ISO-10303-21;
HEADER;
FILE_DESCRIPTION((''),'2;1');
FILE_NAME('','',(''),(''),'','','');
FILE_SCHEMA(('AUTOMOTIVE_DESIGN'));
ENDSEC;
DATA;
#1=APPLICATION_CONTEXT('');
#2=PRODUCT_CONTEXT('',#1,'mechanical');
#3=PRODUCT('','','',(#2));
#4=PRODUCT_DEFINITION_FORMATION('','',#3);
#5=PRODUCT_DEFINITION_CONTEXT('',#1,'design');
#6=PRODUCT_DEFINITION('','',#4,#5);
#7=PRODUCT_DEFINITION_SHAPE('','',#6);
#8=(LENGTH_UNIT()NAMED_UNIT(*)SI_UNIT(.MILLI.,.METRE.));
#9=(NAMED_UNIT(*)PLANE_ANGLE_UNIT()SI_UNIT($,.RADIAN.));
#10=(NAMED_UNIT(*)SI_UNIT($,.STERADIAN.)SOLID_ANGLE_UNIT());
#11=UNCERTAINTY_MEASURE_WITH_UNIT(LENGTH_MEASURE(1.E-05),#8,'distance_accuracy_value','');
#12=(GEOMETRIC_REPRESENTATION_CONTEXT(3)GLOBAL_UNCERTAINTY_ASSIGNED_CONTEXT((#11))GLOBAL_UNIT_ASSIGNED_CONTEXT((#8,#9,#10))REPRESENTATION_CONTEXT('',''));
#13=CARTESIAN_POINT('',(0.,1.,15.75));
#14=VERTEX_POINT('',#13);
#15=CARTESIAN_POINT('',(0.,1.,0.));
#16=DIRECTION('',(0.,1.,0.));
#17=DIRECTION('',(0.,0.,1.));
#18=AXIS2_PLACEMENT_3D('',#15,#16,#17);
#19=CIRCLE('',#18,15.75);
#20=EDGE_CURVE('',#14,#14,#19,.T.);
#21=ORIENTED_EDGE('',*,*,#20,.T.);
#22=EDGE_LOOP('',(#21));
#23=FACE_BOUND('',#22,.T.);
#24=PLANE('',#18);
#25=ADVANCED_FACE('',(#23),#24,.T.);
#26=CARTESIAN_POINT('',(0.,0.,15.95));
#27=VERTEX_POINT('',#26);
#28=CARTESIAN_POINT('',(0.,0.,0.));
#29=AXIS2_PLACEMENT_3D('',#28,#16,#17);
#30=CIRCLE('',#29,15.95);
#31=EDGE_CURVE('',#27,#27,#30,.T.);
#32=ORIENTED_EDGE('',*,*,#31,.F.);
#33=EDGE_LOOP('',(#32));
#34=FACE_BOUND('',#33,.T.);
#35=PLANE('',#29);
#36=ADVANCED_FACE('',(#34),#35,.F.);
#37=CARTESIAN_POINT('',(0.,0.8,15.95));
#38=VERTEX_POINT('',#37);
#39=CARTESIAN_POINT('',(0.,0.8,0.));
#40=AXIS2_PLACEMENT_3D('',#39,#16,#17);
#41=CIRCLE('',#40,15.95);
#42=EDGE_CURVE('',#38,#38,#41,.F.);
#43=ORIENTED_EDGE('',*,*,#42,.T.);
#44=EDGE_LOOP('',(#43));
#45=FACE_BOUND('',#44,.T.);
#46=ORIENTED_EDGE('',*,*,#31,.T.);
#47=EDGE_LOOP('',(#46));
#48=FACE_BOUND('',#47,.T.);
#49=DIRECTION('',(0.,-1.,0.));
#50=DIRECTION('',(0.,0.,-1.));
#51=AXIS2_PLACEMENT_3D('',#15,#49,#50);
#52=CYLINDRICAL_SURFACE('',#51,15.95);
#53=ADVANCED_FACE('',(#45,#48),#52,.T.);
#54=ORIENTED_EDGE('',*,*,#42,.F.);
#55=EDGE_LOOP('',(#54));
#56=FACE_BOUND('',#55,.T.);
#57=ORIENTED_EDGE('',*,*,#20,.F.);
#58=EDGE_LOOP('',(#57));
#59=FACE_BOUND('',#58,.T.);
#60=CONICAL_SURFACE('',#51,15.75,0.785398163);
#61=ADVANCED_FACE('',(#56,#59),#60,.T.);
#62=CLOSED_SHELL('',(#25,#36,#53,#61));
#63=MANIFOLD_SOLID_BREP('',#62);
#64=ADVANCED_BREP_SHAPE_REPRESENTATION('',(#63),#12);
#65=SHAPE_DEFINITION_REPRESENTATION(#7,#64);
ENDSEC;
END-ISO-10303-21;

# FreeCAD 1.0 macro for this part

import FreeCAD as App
import Part
import Sketcher
from FreeCAD import Vector
Q = App.Units.Quantity


def edges_at(feature, points):
    """Names of the edges that pass closest to the given points."""
    edges = feature.Shape.Edges
    near = lambda p: min(range(len(edges)), key=lambda i: edges[i].distToShape(Part.Vertex(*p))[0])
    return sorted({f"Edge{near(p) + 1}" for p in points})

doc = App.newDocument("Part")
body = doc.addObject("PartDesign::Body", "Body")

sketch1 = body.newObject("Sketcher::SketchObject", "Sketch")
sketch1.AttachmentSupport = (doc.getObject("XZ_Plane"), [""])
sketch1.MapMode = "FlatFace"
sketch1.addGeometry(Part.Circle(Vector(0, 0, 0), Vector(0, 0, 1), 16), False)
sketch1.addConstraint([
    Sketcher.Constraint("Coincident", 0, 3, -1, 1),
    Sketcher.Constraint("Diameter", 0, Q("31.9 mm")),
])
pad1 = body.newObject("PartDesign::Pad", "Pad")
pad1.Profile = sketch1
pad1.Length = 1
pad1.Reversed = True
doc.recompute()

chamfer = body.newObject("PartDesign::Chamfer", "Chamfer")
chamfer.Base = (pad1, edges_at(pad1, [(-15.95, 1, 0)]))
chamfer.Size = 0.2

doc.recompute()
